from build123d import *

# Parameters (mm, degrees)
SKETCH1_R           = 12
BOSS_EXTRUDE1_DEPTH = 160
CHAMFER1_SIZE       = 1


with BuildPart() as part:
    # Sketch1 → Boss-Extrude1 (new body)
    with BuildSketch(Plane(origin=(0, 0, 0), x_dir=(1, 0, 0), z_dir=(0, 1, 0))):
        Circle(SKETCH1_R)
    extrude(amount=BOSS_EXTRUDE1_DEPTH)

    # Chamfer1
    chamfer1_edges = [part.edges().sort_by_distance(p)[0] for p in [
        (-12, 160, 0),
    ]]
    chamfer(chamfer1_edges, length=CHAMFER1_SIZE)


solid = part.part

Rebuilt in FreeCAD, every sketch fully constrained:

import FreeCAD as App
import Part
import Sketcher

V = App.Vector


def edges_at(feature, points):
    """Names of the edges that pass closest to the given points."""
    edges = feature.Shape.Edges
    near = lambda p: min(range(len(edges)), key=lambda i: edges[i].distToShape(Part.Vertex(*p))[0])
    return sorted({f"Edge{near(p) + 1}" for p in points})

doc = App.newDocument("Part")
body = doc.addObject("PartDesign::Body", "Body")

# Sketch on XZ plane
sketch1 = body.newObject("Sketcher::SketchObject", "Sketch")
sketch1.AttachmentSupport = (doc.getObject("XZ_Plane"), [""])
sketch1.MapMode = "FlatFace"
sketch1.addGeometry(Part.Circle(V(0, 0, 0), V(0, 0, 1), 12), False)
sketch1.addConstraint([
    Sketcher.Constraint("Coincident", 0, 3, -1, 1),
    Sketcher.Constraint("Diameter", 0, 24.0),
])
pad1 = body.newObject("PartDesign::Pad", "Pad")
pad1.Profile = sketch1
pad1.Length = 160
pad1.Reversed = True
doc.recompute()

chamfer = body.newObject("PartDesign::Chamfer", "Chamfer")
chamfer.Base = (pad1, edges_at(pad1, [(-12, 160, 0)]))
chamfer.Size = 1

doc.recompute()
